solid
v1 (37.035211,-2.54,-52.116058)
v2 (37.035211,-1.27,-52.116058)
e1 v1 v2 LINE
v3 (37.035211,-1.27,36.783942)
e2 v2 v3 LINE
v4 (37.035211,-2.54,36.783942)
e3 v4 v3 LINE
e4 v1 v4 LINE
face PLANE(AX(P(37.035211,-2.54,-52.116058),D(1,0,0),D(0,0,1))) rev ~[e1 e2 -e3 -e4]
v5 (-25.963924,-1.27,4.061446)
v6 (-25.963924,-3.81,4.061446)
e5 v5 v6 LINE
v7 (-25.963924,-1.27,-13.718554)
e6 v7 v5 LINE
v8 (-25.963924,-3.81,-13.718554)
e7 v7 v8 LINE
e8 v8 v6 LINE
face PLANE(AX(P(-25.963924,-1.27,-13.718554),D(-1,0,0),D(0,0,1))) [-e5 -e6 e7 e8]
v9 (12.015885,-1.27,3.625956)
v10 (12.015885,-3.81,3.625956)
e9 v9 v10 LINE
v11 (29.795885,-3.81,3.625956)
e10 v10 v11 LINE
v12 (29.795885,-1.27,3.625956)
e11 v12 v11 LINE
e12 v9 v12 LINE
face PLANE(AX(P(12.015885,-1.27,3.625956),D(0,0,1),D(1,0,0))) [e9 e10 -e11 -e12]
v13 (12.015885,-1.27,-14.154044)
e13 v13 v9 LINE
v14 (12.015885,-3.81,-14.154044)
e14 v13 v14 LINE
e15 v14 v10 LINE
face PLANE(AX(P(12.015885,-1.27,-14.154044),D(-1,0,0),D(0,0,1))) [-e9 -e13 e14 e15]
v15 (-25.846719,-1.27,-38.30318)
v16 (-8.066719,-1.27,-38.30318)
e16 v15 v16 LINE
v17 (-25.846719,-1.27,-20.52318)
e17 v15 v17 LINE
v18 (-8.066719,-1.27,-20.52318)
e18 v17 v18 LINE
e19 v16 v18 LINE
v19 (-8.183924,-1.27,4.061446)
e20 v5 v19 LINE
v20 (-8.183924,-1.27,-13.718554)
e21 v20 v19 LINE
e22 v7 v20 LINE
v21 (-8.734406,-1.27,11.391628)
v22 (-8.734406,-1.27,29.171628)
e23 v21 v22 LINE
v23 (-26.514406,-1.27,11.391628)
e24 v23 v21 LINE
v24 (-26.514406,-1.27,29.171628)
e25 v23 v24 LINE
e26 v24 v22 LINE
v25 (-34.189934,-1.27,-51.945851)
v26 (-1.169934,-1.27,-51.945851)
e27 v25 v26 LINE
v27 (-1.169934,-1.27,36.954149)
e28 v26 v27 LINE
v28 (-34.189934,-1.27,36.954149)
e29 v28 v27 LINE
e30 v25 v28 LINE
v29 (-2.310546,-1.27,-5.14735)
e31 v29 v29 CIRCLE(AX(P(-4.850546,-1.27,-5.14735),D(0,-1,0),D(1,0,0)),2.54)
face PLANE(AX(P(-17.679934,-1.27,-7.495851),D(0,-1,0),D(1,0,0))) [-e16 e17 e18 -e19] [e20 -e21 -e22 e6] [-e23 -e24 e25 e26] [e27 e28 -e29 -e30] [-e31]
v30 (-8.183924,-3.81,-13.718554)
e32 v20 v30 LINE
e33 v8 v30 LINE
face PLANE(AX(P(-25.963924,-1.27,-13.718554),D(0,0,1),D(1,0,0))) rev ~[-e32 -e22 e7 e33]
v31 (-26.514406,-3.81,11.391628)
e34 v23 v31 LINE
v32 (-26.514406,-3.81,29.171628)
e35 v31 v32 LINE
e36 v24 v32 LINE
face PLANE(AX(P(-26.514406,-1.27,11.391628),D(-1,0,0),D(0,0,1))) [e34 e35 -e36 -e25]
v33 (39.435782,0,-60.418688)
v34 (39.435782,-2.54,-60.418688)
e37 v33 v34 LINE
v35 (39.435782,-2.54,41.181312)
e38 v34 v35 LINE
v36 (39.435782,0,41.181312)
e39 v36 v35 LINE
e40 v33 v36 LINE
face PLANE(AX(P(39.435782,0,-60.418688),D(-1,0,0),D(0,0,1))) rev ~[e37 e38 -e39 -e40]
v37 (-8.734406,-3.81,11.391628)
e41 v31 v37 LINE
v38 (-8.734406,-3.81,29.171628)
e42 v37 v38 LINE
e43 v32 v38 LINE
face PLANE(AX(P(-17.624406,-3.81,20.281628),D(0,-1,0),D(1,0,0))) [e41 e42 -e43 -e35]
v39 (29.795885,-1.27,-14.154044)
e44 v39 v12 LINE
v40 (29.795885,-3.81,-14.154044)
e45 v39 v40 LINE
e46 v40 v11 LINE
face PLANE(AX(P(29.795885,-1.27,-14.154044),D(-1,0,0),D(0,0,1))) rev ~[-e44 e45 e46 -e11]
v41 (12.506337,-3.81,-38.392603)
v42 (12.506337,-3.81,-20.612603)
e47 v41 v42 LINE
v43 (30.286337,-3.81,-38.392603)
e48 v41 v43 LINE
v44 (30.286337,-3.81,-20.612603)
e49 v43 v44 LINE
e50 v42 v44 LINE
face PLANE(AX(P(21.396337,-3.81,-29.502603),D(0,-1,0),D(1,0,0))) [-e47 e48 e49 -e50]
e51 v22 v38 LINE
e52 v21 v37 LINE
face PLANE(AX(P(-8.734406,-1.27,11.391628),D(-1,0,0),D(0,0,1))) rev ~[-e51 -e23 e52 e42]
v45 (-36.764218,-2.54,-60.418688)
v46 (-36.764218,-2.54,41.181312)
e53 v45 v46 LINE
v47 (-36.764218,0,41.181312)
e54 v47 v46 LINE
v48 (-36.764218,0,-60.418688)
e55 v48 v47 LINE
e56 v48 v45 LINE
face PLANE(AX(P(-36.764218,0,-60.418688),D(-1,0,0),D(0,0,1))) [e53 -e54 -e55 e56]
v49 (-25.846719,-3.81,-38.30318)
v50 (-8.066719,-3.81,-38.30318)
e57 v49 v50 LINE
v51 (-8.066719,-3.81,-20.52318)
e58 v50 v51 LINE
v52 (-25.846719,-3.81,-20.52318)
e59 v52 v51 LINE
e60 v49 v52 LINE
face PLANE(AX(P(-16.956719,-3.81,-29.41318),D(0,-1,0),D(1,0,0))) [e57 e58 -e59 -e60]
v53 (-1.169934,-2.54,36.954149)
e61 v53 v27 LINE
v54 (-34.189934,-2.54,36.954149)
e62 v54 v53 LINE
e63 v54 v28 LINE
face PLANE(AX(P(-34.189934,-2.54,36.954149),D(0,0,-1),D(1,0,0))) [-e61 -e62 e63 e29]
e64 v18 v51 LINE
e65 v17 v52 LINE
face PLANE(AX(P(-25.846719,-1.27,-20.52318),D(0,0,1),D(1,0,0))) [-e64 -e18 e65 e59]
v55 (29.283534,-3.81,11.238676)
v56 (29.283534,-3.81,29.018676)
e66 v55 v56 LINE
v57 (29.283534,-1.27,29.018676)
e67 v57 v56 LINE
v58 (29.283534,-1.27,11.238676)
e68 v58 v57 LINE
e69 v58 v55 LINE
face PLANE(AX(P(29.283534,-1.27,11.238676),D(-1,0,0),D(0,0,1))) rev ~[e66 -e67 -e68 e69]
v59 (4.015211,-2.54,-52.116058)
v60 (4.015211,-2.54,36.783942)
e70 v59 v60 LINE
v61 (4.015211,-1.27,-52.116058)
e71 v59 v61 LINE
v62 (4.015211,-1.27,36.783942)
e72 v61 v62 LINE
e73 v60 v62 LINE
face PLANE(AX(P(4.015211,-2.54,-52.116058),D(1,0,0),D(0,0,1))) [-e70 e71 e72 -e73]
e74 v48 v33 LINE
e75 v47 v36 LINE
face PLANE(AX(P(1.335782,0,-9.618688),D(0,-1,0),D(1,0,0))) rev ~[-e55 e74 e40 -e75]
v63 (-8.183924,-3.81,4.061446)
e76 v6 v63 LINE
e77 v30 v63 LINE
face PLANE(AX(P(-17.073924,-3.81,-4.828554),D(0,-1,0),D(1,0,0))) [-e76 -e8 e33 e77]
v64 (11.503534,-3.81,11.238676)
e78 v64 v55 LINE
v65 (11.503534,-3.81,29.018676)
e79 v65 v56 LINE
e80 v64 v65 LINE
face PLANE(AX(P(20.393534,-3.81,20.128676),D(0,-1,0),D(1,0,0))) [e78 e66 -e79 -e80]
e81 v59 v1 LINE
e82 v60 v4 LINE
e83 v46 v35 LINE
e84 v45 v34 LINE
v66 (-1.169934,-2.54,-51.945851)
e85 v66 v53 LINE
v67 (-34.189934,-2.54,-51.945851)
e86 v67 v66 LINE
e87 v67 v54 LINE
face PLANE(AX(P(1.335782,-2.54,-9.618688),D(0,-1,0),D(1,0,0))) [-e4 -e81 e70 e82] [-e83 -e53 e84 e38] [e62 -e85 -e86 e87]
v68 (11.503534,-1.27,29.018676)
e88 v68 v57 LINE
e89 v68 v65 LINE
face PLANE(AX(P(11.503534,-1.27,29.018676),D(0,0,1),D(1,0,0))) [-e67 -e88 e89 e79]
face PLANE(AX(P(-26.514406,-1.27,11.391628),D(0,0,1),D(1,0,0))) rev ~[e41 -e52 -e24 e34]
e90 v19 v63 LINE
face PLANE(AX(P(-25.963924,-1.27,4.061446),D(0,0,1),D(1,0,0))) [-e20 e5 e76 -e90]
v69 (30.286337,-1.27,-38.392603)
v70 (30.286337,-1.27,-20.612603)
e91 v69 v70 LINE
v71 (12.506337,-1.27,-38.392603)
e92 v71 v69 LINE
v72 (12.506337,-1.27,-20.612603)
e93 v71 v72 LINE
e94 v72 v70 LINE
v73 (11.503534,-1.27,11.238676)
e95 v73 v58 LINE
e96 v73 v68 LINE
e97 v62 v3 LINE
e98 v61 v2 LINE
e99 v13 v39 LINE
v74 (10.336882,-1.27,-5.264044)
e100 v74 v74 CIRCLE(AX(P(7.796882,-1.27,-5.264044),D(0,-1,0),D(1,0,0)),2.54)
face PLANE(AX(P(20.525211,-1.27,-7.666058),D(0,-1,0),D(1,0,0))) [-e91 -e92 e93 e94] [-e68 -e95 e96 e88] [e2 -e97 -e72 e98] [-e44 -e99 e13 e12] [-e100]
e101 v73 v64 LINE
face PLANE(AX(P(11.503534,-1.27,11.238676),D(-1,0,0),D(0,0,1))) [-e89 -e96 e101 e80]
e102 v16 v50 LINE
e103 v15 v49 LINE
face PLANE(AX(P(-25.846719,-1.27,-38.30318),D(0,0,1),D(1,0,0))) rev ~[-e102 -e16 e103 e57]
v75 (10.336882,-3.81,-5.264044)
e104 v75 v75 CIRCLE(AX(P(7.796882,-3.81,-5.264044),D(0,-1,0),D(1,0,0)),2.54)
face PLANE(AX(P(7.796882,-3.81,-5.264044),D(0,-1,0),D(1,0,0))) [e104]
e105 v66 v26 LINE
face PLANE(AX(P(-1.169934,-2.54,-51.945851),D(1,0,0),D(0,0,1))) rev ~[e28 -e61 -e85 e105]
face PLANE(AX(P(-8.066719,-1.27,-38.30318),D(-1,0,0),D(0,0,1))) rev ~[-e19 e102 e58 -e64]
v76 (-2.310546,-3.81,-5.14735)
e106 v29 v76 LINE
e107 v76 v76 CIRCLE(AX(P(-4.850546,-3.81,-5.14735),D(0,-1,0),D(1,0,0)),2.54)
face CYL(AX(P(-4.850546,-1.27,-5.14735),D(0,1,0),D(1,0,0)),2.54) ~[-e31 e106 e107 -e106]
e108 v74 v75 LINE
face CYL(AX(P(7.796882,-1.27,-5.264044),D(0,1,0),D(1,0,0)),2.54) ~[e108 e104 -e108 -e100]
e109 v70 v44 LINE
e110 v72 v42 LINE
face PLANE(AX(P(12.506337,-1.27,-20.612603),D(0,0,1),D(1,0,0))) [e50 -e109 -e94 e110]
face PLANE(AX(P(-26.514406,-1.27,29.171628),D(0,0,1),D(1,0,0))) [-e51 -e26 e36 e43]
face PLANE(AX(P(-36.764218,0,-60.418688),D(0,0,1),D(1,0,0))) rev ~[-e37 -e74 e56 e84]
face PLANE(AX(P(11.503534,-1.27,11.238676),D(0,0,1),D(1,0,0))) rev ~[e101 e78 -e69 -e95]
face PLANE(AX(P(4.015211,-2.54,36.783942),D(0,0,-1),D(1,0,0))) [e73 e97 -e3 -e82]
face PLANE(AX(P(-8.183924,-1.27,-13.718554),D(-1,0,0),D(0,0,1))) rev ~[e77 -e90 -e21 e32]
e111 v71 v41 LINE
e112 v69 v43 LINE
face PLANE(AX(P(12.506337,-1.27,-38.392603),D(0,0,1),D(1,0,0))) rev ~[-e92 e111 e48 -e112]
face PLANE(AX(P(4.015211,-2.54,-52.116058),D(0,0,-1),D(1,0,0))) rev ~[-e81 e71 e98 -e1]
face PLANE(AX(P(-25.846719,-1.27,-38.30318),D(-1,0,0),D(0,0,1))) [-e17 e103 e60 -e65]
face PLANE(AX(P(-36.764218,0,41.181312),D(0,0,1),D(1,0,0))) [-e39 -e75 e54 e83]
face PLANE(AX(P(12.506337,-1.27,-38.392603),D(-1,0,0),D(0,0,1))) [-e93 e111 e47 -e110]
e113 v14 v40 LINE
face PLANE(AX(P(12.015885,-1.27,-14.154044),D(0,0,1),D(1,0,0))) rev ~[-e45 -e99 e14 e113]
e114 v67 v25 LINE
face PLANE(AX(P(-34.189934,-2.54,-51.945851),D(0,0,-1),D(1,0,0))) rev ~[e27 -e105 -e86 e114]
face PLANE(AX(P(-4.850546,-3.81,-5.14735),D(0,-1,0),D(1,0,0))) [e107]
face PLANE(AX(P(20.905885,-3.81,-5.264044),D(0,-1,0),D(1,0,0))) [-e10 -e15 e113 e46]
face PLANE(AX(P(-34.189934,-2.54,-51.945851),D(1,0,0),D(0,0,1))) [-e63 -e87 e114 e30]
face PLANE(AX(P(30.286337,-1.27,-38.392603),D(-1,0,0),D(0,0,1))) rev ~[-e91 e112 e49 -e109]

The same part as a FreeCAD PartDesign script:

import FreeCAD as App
import Part
import Sketcher

V = App.Vector
Q = App.Units.Quantity


def add_polygon(sketch, points):
    """Adds a closed chain of lines whose ends are joined by coincident constraints."""
    first, n = sketch.GeometryCount, len(points)
    for a, b in zip(points, points[1:] + points[:1]):
        sketch.addGeometry(Part.LineSegment(App.Vector(*a, 0), App.Vector(*b, 0)), False)
    for i in range(n):
        sketch.addConstraint(Sketcher.Constraint("Coincident", first + i, 2, first + (i + 1) % n, 1))

doc = App.newDocument("Part")
body = doc.addObject("PartDesign::Body", "Body")

# Sketch on XZ plane
sketch1 = doc.addObject("Sketcher::SketchObject", "Sketch")
body.addObject(sketch1)
sketch1.AttachmentSupport = (doc.XZ_Plane, [""])
sketch1.MapMode = "FlatFace"
add_polygon(sketch1, [(-36.764218, 41.181312), (-36.764218, -60.418688), (39.435782, -60.418688), (39.435782, 41.181312)])  # lines 0-3
sketch1.addConstraint(Sketcher.Constraint("Vertical", 0))
sketch1.addConstraint(Sketcher.Constraint("Horizontal", 1))
sketch1.addConstraint(Sketcher.Constraint("Vertical", 2))
sketch1.addConstraint(Sketcher.Constraint("Horizontal", 3))
sketch1.addConstraint(Sketcher.Constraint("DistanceX", 1, 1, 1, 2, Q("3 in")))
sketch1.addConstraint(Sketcher.Constraint("DistanceY", 0, 2, 0, 1, Q("4 in")))
sketch1.addConstraint(Sketcher.Constraint("DistanceY", 0, 2, -1, 1, 60.418688))
sketch1.addConstraint(Sketcher.Constraint("DistanceX", 0, 2, -1, 1, 36.764218))
pad1 = doc.addObject("PartDesign::Pad", "Pad")
body.addObject(pad1)
pad1.Profile = sketch1
pad1.Length = Q("0.1 in")

# Sketch on XZ plane
sketch2 = doc.addObject("Sketcher::SketchObject", "Sketch001")
body.addObject(sketch2)
sketch2.AttachmentSupport = (doc.XZ_Plane, [""])
sketch2.MapMode = "FlatFace"
sketch2.AttachmentOffset = App.Placement(V(0, 0, 0.1 * 25.4), App.Rotation())
add_polygon(sketch2, [(-34.189934, 36.954149), (-34.189934, -51.945851), (-1.169934, -51.945851), (-1.169934, 36.954149)])  # lines 0-3
add_polygon(sketch2, [(4.015211, 36.783942), (4.015211, -52.116058), (37.035211, -52.116058), (37.035211, 36.783942)])  # lines 4-7
sketch2.addConstraint(Sketcher.Constraint("Vertical", 0))
sketch2.addConstraint(Sketcher.Constraint("Horizontal", 1))
sketch2.addConstraint(Sketcher.Constraint("Vertical", 2))
sketch2.addConstraint(Sketcher.Constraint("Horizontal", 3))
sketch2.addConstraint(Sketcher.Constraint("Vertical", 4))
sketch2.addConstraint(Sketcher.Constraint("Horizontal", 5))
sketch2.addConstraint(Sketcher.Constraint("Vertical", 6))
sketch2.addConstraint(Sketcher.Constraint("Horizontal", 7))
sketch2.addConstraint(Sketcher.Constraint("Equal", 3, 5))
sketch2.addConstraint(Sketcher.Constraint("Equal", 2, 4))
sketch2.addConstraint(Sketcher.Constraint("DistanceX", 1, 1, 1, 2, Q("1.3 in")))
sketch2.addConstraint(Sketcher.Constraint("DistanceY", 0, 2, 0, 1, Q("3.5 in")))
sketch2.addConstraint(Sketcher.Constraint("DistanceY", 0, 2, -1, 1, 51.945851))
sketch2.addConstraint(Sketcher.Constraint("DistanceX", -1, 1, 4, 2, 4.015211))
sketch2.addConstraint(Sketcher.Constraint("DistanceY", 4, 2, -1, 1, 52.116058))
sketch2.addConstraint(Sketcher.Constraint("DistanceX", 0, 2, -1, 1, 34.189934))
pocket1 = doc.addObject("PartDesign::Pocket", "Pocket")
body.addObject(pocket1)
pocket1.Profile = sketch2
pocket1.Length = Q("0.05 in")

# Sketch on XZ plane
sketch3 = doc.addObject("Sketcher::SketchObject", "Sketch002")
body.addObject(sketch3)
sketch3.AttachmentSupport = (doc.XZ_Plane, [""])
sketch3.MapMode = "FlatFace"
sketch3.AttachmentOffset = App.Placement(V(0, 0, 0.05 * 25.4), App.Rotation())
add_polygon(sketch3, [(-26.514406, 29.171628), (-26.514406, 11.391628), (-8.734406, 11.391628), (-8.734406, 29.171628)])  # lines 0-3
add_polygon(sketch3, [(-25.963924, 4.061446), (-25.963924, -13.718554), (-8.183924, -13.718554), (-8.183924, 4.061446)])  # lines 4-7
add_polygon(sketch3, [(-25.846719, -20.52318), (-25.846719, -38.30318), (-8.066719, -38.30318), (-8.066719, -20.52318)])  # lines 8-11
add_polygon(sketch3, [(11.503534, 29.018676), (11.503534, 11.238676), (29.283534, 11.238676), (29.283534, 29.018676)])  # lines 12-15
add_polygon(sketch3, [(12.015885, 3.625956), (12.015885, -14.154044), (29.795885, -14.154044), (29.795885, 3.625956)])  # lines 16-19
add_polygon(sketch3, [(12.506337, -20.612603), (12.506337, -38.392603), (30.286337, -38.392603), (30.286337, -20.612603)])  # lines 20-23
sketch3.addConstraint(Sketcher.Constraint("Vertical", 0))
sketch3.addConstraint(Sketcher.Constraint("Horizontal", 1))
sketch3.addConstraint(Sketcher.Constraint("Vertical", 2))
sketch3.addConstraint(Sketcher.Constraint("Horizontal", 3))
sketch3.addConstraint(Sketcher.Constraint("Vertical", 4))
sketch3.addConstraint(Sketcher.Constraint("Horizontal", 5))
sketch3.addConstraint(Sketcher.Constraint("Vertical", 6))
sketch3.addConstraint(Sketcher.Constraint("Horizontal", 7))
sketch3.addConstraint(Sketcher.Constraint("Vertical", 8))
sketch3.addConstraint(Sketcher.Constraint("Horizontal", 9))
sketch3.addConstraint(Sketcher.Constraint("Vertical", 10))
sketch3.addConstraint(Sketcher.Constraint("Horizontal", 11))
sketch3.addConstraint(Sketcher.Constraint("Vertical", 12))
sketch3.addConstraint(Sketcher.Constraint("Horizontal", 13))
sketch3.addConstraint(Sketcher.Constraint("Vertical", 14))
sketch3.addConstraint(Sketcher.Constraint("Horizontal", 15))
sketch3.addConstraint(Sketcher.Constraint("Vertical", 16))
sketch3.addConstraint(Sketcher.Constraint("Horizontal", 17))
sketch3.addConstraint(Sketcher.Constraint("Vertical", 18))
sketch3.addConstraint(Sketcher.Constraint("Horizontal", 19))
sketch3.addConstraint(Sketcher.Constraint("Vertical", 20))
sketch3.addConstraint(Sketcher.Constraint("Horizontal", 21))
sketch3.addConstraint(Sketcher.Constraint("Vertical", 22))
sketch3.addConstraint(Sketcher.Constraint("Horizontal", 23))
sketch3.addConstraint(Sketcher.Constraint("Equal", 3, 5))
sketch3.addConstraint(Sketcher.Constraint("Equal", 7, 9))
sketch3.addConstraint(Sketcher.Constraint("Equal", 11, 13))
sketch3.addConstraint(Sketcher.Constraint("Equal", 15, 17))
sketch3.addConstraint(Sketcher.Constraint("Equal", 19, 21))
sketch3.addConstraint(Sketcher.Constraint("Equal", 23, 0))
sketch3.addConstraint(Sketcher.Constraint("Equal", 2, 4))
sketch3.addConstraint(Sketcher.Constraint("Equal", 6, 8))
sketch3.addConstraint(Sketcher.Constraint("Equal", 10, 12))
sketch3.addConstraint(Sketcher.Constraint("Equal", 14, 16))
sketch3.addConstraint(Sketcher.Constraint("Equal", 18, 20))
sketch3.addConstraint(Sketcher.Constraint("DistanceX", 1, 1, 1, 2, Q("0.7 in")))
sketch3.addConstraint(Sketcher.Constraint("DistanceY", -1, 1, 0, 2, 11.391628))
sketch3.addConstraint(Sketcher.Constraint("DistanceX", 8, 2, -1, 1, 25.846719))
sketch3.addConstraint(Sketcher.Constraint("DistanceY", 8, 2, -1, 1, 38.30318))
sketch3.addConstraint(Sketcher.Constraint("DistanceY", 4, 2, 3, 2, 42.890182))
sketch3.addConstraint(Sketcher.Constraint("DistanceX", 1, 2, 12, 2, 20.23794))
sketch3.addConstraint(Sketcher.Constraint("DistanceY", 6, 2, 12, 2, 7.17723))
sketch3.addConstraint(Sketcher.Constraint("DistanceX", 5, 2, 16, 2, 20.199809))
sketch3.addConstraint(Sketcher.Constraint("DistanceY", 16, 2, 5, 2, 0.43549))
sketch3.addConstraint(Sketcher.Constraint("DistanceX", 12, 2, 16, 2, 0.512351))
sketch3.addConstraint(Sketcher.Constraint("DistanceX", 16, 2, 20, 2, 0.490452))
sketch3.addConstraint(Sketcher.Constraint("DistanceY", 20, 2, 16, 2, 24.238559))
sketch3.addConstraint(Sketcher.Constraint("DistanceX", 0, 2, -1, 1, 26.514406))
pad2 = doc.addObject("PartDesign::Pad", "Pad001")
body.addObject(pad2)
pad2.Profile = sketch3
pad2.Length = Q("0.1 in")

# Sketch on XZ plane
sketch4 = doc.addObject("Sketcher::SketchObject", "Sketch003")
body.addObject(sketch4)
sketch4.AttachmentSupport = (doc.XZ_Plane, [""])
sketch4.MapMode = "FlatFace"
sketch4.AttachmentOffset = App.Placement(V(0, 0, 0.05 * 25.4), App.Rotation())
sketch4.addGeometry(Part.Circle(V(-4.850546, -5.14735, 0), V(0, 0, 1), 2.54), False)
sketch4.addGeometry(Part.Circle(V(7.796882, -5.264044, 0), V(0, 0, 1), 2.54), False)
sketch4.addConstraint(Sketcher.Constraint("Equal", 0, 1))
sketch4.addConstraint(Sketcher.Constraint("Diameter", 0, Q("0.2 in")))
sketch4.addConstraint(Sketcher.Constraint("DistanceY", 0, 3, -1, 1, 5.14735))
sketch4.addConstraint(Sketcher.Constraint("DistanceX", 0, 3, -1, 1, 4.850546))
sketch4.addConstraint(Sketcher.Constraint("DistanceX", -1, 1, 1, 3, 7.796882))
sketch4.addConstraint(Sketcher.Constraint("DistanceY", 1, 3, -1, 1, 5.264044))
pad3 = doc.addObject("PartDesign::Pad", "Pad002")
body.addObject(pad3)
pad3.Profile = sketch4
pad3.Length = Q("0.1 in")

doc.recompute()
